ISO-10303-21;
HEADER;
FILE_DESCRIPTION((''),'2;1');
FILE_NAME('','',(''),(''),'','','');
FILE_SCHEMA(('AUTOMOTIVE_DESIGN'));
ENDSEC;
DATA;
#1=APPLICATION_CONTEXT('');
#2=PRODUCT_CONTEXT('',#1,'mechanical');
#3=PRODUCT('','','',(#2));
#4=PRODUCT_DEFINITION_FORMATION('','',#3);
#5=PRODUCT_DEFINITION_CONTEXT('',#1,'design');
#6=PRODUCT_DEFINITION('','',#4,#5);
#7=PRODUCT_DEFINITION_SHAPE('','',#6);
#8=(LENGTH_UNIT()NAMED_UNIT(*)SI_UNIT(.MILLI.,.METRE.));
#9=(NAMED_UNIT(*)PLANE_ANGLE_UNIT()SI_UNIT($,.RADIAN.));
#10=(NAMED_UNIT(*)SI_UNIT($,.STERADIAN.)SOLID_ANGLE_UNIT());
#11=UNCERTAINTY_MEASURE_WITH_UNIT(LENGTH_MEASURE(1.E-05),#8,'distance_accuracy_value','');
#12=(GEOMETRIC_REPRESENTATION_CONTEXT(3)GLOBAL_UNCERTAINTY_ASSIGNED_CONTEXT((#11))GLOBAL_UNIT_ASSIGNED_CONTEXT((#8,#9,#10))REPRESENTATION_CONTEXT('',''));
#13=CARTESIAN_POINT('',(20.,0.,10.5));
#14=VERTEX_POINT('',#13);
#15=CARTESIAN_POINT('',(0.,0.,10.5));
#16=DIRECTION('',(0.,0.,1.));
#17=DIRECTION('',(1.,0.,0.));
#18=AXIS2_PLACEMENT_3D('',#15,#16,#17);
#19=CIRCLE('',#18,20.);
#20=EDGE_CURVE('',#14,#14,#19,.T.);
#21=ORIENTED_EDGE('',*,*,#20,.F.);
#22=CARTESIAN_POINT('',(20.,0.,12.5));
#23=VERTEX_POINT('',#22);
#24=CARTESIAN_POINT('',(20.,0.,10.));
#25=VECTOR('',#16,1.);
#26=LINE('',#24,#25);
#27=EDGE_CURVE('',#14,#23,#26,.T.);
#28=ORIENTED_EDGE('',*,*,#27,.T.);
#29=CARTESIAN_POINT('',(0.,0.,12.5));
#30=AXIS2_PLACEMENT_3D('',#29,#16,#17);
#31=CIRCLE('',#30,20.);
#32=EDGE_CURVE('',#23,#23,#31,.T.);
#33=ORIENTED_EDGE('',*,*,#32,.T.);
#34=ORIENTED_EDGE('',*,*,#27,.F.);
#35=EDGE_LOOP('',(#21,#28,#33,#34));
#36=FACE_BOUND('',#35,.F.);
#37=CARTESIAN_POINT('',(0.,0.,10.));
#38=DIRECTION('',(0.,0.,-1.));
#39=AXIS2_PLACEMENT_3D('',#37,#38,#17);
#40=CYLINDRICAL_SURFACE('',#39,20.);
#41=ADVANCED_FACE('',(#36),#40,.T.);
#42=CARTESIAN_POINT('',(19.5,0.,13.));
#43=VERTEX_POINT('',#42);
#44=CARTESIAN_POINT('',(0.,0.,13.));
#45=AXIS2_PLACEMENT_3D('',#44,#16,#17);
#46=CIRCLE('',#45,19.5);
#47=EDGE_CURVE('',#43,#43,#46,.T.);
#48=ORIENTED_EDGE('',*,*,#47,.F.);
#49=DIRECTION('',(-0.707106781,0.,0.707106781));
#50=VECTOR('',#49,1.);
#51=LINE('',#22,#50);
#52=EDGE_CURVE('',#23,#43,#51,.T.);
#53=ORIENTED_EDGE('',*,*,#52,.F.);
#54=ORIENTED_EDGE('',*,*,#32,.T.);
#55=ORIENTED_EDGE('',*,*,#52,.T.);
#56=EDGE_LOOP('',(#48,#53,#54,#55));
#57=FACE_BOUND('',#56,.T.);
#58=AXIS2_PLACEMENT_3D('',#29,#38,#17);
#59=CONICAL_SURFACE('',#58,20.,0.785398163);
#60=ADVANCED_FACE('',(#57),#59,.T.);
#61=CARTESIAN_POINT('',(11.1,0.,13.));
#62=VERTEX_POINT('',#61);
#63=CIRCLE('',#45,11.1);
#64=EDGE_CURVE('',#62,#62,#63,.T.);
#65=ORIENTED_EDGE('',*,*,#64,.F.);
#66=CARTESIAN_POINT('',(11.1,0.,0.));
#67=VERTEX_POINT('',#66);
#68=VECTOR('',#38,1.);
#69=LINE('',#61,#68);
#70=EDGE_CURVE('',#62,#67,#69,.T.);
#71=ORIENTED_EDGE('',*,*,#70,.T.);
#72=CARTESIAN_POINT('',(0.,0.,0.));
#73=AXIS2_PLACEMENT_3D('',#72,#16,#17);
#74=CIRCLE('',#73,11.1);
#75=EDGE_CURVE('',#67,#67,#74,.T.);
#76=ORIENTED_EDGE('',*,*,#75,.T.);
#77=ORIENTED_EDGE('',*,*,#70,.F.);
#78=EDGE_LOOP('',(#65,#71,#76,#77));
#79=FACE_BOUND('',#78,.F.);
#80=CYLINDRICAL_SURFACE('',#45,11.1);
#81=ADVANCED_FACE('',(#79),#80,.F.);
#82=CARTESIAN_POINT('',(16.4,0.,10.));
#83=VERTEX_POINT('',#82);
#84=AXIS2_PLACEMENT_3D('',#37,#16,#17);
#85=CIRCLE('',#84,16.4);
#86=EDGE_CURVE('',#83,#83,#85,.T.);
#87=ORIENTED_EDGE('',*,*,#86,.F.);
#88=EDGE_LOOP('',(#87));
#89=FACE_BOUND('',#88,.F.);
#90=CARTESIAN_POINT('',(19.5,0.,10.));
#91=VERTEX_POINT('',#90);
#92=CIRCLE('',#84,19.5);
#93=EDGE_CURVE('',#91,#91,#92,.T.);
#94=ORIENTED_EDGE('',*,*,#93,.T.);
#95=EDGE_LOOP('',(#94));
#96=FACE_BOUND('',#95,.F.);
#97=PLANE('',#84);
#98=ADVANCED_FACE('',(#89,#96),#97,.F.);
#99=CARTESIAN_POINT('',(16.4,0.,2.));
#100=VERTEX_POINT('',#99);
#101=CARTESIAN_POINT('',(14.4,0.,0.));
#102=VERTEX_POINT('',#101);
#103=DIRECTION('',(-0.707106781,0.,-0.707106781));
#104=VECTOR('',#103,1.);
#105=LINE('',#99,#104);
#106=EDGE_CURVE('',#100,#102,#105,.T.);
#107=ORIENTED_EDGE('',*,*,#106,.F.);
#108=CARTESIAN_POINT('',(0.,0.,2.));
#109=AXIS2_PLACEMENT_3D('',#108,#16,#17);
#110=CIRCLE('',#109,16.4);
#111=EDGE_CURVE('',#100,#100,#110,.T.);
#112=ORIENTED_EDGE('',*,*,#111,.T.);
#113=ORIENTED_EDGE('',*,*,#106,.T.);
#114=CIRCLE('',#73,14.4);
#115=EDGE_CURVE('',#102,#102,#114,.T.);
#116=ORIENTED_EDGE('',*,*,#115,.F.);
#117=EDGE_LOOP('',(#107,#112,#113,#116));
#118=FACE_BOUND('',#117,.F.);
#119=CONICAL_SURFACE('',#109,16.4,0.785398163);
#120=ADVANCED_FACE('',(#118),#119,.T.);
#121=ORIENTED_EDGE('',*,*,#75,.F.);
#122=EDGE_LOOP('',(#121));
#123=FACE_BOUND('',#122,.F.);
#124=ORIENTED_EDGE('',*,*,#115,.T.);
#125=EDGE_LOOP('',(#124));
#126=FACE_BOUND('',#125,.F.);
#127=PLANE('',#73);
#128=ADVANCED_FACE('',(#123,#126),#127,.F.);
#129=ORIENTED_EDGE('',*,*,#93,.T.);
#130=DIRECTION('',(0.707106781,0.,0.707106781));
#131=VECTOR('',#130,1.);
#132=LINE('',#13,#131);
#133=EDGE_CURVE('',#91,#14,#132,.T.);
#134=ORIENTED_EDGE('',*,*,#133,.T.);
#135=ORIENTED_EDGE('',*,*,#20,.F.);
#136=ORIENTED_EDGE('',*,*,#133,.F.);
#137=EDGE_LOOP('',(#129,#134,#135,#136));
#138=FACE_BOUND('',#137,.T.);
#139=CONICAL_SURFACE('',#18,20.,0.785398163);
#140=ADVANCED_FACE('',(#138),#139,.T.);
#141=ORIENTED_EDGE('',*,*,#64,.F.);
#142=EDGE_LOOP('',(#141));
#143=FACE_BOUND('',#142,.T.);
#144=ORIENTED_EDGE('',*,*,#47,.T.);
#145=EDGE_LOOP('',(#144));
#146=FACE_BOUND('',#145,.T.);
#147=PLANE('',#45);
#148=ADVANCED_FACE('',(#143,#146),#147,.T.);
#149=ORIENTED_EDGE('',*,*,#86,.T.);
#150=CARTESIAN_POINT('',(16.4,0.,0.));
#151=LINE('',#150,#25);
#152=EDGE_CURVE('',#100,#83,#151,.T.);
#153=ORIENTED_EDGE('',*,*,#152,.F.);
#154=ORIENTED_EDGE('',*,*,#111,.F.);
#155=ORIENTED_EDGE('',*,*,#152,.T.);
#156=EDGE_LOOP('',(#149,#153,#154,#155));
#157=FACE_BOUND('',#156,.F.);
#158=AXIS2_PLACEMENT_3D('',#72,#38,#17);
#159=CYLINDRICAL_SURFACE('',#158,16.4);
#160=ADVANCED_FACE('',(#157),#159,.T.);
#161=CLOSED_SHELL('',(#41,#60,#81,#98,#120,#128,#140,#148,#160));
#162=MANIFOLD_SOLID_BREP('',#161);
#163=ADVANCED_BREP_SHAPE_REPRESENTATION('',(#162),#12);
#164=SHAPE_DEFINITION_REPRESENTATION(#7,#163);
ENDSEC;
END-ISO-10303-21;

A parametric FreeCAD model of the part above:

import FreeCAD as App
import Part
import Sketcher
Q = App.Units.Quantity


def edges_at(feature, points):
    """Names of the edges that pass closest to the given points."""
    edges = feature.Shape.Edges
    near = lambda p: min(range(len(edges)), key=lambda i: edges[i].distToShape(Part.Vertex(*p))[0])
    return sorted({f"Edge{near(p) + 1}" for p in points})

doc = App.newDocument("Part")
body = doc.addObject("PartDesign::Body", "Body")

sketch1 = body.newObject("Sketcher::SketchObject", "Sketch")
sketch1.AttachmentSupport = (doc.getObject("XY_Plane"), [""])
sketch1.MapMode = "FlatFace"
sketch1.addGeometry(Part.Circle(App.Vector(0, 0, 0), App.Vector(0, 0, 1), 16), False)
sketch1.addConstraint(Sketcher.Constraint("Coincident", 0, 3, -1, 1))
sketch1.addConstraint(Sketcher.Constraint("Diameter", 0, Q("32.8 mm")))
pad1 = body.newObject("PartDesign::Pad", "Pad")
pad1.Profile = sketch1
pad1.Length = 10

sketch2 = body.newObject("Sketcher::SketchObject", "Sketch001")
sketch2.AttachmentSupport = (doc.getObject("XY_Plane"), [""])
sketch2.MapMode = "FlatFace"
sketch2.AttachmentOffset = App.Placement(App.Vector(0, 0, 10), App.Rotation())
sketch2.addGeometry(Part.Circle(App.Vector(0, 0, 0), App.Vector(0, 0, 1), 20), False)
sketch2.addConstraint(Sketcher.Constraint("Coincident", 0, 3, -1, 1))
sketch2.addConstraint(Sketcher.Constraint("Diameter", 0, Q("40 mm")))
pad2 = body.newObject("PartDesign::Pad", "Pad001")
pad2.Profile = sketch2
pad2.Length = 3
doc.recompute()

chamfer = body.newObject("PartDesign::Chamfer", "Chamfer")
chamfer.Base = (pad2, edges_at(pad2, [(-16.4, 0, 0)]))
chamfer.Size = 2
doc.recompute()

chamfer2 = body.newObject("PartDesign::Chamfer", "Chamfer001")
chamfer2.Base = (chamfer, edges_at(chamfer, [(-20, 0, 13), (-20, 0, 10)]))
chamfer2.Size = 0.5

sketch3 = body.newObject("Sketcher::SketchObject", "Sketch002")
sketch3.AttachmentSupport = (doc.getObject("XY_Plane"), [""])
sketch3.MapMode = "FlatFace"
sketch3.AttachmentOffset = App.Placement(App.Vector(0, 0, 13), App.Rotation())
sketch3.addGeometry(Part.Circle(App.Vector(0, 0, 0), App.Vector(0, 0, 1), 11), False)
sketch3.addConstraint(Sketcher.Constraint("Coincident", 0, 3, -1, 1))
sketch3.addConstraint(Sketcher.Constraint("Diameter", 0, Q("22.2 mm")))
pocket1 = body.newObject("PartDesign::Pocket", "Pocket")
pocket1.Profile = sketch3
pocket1.Type = "ThroughAll"

doc.recompute()
